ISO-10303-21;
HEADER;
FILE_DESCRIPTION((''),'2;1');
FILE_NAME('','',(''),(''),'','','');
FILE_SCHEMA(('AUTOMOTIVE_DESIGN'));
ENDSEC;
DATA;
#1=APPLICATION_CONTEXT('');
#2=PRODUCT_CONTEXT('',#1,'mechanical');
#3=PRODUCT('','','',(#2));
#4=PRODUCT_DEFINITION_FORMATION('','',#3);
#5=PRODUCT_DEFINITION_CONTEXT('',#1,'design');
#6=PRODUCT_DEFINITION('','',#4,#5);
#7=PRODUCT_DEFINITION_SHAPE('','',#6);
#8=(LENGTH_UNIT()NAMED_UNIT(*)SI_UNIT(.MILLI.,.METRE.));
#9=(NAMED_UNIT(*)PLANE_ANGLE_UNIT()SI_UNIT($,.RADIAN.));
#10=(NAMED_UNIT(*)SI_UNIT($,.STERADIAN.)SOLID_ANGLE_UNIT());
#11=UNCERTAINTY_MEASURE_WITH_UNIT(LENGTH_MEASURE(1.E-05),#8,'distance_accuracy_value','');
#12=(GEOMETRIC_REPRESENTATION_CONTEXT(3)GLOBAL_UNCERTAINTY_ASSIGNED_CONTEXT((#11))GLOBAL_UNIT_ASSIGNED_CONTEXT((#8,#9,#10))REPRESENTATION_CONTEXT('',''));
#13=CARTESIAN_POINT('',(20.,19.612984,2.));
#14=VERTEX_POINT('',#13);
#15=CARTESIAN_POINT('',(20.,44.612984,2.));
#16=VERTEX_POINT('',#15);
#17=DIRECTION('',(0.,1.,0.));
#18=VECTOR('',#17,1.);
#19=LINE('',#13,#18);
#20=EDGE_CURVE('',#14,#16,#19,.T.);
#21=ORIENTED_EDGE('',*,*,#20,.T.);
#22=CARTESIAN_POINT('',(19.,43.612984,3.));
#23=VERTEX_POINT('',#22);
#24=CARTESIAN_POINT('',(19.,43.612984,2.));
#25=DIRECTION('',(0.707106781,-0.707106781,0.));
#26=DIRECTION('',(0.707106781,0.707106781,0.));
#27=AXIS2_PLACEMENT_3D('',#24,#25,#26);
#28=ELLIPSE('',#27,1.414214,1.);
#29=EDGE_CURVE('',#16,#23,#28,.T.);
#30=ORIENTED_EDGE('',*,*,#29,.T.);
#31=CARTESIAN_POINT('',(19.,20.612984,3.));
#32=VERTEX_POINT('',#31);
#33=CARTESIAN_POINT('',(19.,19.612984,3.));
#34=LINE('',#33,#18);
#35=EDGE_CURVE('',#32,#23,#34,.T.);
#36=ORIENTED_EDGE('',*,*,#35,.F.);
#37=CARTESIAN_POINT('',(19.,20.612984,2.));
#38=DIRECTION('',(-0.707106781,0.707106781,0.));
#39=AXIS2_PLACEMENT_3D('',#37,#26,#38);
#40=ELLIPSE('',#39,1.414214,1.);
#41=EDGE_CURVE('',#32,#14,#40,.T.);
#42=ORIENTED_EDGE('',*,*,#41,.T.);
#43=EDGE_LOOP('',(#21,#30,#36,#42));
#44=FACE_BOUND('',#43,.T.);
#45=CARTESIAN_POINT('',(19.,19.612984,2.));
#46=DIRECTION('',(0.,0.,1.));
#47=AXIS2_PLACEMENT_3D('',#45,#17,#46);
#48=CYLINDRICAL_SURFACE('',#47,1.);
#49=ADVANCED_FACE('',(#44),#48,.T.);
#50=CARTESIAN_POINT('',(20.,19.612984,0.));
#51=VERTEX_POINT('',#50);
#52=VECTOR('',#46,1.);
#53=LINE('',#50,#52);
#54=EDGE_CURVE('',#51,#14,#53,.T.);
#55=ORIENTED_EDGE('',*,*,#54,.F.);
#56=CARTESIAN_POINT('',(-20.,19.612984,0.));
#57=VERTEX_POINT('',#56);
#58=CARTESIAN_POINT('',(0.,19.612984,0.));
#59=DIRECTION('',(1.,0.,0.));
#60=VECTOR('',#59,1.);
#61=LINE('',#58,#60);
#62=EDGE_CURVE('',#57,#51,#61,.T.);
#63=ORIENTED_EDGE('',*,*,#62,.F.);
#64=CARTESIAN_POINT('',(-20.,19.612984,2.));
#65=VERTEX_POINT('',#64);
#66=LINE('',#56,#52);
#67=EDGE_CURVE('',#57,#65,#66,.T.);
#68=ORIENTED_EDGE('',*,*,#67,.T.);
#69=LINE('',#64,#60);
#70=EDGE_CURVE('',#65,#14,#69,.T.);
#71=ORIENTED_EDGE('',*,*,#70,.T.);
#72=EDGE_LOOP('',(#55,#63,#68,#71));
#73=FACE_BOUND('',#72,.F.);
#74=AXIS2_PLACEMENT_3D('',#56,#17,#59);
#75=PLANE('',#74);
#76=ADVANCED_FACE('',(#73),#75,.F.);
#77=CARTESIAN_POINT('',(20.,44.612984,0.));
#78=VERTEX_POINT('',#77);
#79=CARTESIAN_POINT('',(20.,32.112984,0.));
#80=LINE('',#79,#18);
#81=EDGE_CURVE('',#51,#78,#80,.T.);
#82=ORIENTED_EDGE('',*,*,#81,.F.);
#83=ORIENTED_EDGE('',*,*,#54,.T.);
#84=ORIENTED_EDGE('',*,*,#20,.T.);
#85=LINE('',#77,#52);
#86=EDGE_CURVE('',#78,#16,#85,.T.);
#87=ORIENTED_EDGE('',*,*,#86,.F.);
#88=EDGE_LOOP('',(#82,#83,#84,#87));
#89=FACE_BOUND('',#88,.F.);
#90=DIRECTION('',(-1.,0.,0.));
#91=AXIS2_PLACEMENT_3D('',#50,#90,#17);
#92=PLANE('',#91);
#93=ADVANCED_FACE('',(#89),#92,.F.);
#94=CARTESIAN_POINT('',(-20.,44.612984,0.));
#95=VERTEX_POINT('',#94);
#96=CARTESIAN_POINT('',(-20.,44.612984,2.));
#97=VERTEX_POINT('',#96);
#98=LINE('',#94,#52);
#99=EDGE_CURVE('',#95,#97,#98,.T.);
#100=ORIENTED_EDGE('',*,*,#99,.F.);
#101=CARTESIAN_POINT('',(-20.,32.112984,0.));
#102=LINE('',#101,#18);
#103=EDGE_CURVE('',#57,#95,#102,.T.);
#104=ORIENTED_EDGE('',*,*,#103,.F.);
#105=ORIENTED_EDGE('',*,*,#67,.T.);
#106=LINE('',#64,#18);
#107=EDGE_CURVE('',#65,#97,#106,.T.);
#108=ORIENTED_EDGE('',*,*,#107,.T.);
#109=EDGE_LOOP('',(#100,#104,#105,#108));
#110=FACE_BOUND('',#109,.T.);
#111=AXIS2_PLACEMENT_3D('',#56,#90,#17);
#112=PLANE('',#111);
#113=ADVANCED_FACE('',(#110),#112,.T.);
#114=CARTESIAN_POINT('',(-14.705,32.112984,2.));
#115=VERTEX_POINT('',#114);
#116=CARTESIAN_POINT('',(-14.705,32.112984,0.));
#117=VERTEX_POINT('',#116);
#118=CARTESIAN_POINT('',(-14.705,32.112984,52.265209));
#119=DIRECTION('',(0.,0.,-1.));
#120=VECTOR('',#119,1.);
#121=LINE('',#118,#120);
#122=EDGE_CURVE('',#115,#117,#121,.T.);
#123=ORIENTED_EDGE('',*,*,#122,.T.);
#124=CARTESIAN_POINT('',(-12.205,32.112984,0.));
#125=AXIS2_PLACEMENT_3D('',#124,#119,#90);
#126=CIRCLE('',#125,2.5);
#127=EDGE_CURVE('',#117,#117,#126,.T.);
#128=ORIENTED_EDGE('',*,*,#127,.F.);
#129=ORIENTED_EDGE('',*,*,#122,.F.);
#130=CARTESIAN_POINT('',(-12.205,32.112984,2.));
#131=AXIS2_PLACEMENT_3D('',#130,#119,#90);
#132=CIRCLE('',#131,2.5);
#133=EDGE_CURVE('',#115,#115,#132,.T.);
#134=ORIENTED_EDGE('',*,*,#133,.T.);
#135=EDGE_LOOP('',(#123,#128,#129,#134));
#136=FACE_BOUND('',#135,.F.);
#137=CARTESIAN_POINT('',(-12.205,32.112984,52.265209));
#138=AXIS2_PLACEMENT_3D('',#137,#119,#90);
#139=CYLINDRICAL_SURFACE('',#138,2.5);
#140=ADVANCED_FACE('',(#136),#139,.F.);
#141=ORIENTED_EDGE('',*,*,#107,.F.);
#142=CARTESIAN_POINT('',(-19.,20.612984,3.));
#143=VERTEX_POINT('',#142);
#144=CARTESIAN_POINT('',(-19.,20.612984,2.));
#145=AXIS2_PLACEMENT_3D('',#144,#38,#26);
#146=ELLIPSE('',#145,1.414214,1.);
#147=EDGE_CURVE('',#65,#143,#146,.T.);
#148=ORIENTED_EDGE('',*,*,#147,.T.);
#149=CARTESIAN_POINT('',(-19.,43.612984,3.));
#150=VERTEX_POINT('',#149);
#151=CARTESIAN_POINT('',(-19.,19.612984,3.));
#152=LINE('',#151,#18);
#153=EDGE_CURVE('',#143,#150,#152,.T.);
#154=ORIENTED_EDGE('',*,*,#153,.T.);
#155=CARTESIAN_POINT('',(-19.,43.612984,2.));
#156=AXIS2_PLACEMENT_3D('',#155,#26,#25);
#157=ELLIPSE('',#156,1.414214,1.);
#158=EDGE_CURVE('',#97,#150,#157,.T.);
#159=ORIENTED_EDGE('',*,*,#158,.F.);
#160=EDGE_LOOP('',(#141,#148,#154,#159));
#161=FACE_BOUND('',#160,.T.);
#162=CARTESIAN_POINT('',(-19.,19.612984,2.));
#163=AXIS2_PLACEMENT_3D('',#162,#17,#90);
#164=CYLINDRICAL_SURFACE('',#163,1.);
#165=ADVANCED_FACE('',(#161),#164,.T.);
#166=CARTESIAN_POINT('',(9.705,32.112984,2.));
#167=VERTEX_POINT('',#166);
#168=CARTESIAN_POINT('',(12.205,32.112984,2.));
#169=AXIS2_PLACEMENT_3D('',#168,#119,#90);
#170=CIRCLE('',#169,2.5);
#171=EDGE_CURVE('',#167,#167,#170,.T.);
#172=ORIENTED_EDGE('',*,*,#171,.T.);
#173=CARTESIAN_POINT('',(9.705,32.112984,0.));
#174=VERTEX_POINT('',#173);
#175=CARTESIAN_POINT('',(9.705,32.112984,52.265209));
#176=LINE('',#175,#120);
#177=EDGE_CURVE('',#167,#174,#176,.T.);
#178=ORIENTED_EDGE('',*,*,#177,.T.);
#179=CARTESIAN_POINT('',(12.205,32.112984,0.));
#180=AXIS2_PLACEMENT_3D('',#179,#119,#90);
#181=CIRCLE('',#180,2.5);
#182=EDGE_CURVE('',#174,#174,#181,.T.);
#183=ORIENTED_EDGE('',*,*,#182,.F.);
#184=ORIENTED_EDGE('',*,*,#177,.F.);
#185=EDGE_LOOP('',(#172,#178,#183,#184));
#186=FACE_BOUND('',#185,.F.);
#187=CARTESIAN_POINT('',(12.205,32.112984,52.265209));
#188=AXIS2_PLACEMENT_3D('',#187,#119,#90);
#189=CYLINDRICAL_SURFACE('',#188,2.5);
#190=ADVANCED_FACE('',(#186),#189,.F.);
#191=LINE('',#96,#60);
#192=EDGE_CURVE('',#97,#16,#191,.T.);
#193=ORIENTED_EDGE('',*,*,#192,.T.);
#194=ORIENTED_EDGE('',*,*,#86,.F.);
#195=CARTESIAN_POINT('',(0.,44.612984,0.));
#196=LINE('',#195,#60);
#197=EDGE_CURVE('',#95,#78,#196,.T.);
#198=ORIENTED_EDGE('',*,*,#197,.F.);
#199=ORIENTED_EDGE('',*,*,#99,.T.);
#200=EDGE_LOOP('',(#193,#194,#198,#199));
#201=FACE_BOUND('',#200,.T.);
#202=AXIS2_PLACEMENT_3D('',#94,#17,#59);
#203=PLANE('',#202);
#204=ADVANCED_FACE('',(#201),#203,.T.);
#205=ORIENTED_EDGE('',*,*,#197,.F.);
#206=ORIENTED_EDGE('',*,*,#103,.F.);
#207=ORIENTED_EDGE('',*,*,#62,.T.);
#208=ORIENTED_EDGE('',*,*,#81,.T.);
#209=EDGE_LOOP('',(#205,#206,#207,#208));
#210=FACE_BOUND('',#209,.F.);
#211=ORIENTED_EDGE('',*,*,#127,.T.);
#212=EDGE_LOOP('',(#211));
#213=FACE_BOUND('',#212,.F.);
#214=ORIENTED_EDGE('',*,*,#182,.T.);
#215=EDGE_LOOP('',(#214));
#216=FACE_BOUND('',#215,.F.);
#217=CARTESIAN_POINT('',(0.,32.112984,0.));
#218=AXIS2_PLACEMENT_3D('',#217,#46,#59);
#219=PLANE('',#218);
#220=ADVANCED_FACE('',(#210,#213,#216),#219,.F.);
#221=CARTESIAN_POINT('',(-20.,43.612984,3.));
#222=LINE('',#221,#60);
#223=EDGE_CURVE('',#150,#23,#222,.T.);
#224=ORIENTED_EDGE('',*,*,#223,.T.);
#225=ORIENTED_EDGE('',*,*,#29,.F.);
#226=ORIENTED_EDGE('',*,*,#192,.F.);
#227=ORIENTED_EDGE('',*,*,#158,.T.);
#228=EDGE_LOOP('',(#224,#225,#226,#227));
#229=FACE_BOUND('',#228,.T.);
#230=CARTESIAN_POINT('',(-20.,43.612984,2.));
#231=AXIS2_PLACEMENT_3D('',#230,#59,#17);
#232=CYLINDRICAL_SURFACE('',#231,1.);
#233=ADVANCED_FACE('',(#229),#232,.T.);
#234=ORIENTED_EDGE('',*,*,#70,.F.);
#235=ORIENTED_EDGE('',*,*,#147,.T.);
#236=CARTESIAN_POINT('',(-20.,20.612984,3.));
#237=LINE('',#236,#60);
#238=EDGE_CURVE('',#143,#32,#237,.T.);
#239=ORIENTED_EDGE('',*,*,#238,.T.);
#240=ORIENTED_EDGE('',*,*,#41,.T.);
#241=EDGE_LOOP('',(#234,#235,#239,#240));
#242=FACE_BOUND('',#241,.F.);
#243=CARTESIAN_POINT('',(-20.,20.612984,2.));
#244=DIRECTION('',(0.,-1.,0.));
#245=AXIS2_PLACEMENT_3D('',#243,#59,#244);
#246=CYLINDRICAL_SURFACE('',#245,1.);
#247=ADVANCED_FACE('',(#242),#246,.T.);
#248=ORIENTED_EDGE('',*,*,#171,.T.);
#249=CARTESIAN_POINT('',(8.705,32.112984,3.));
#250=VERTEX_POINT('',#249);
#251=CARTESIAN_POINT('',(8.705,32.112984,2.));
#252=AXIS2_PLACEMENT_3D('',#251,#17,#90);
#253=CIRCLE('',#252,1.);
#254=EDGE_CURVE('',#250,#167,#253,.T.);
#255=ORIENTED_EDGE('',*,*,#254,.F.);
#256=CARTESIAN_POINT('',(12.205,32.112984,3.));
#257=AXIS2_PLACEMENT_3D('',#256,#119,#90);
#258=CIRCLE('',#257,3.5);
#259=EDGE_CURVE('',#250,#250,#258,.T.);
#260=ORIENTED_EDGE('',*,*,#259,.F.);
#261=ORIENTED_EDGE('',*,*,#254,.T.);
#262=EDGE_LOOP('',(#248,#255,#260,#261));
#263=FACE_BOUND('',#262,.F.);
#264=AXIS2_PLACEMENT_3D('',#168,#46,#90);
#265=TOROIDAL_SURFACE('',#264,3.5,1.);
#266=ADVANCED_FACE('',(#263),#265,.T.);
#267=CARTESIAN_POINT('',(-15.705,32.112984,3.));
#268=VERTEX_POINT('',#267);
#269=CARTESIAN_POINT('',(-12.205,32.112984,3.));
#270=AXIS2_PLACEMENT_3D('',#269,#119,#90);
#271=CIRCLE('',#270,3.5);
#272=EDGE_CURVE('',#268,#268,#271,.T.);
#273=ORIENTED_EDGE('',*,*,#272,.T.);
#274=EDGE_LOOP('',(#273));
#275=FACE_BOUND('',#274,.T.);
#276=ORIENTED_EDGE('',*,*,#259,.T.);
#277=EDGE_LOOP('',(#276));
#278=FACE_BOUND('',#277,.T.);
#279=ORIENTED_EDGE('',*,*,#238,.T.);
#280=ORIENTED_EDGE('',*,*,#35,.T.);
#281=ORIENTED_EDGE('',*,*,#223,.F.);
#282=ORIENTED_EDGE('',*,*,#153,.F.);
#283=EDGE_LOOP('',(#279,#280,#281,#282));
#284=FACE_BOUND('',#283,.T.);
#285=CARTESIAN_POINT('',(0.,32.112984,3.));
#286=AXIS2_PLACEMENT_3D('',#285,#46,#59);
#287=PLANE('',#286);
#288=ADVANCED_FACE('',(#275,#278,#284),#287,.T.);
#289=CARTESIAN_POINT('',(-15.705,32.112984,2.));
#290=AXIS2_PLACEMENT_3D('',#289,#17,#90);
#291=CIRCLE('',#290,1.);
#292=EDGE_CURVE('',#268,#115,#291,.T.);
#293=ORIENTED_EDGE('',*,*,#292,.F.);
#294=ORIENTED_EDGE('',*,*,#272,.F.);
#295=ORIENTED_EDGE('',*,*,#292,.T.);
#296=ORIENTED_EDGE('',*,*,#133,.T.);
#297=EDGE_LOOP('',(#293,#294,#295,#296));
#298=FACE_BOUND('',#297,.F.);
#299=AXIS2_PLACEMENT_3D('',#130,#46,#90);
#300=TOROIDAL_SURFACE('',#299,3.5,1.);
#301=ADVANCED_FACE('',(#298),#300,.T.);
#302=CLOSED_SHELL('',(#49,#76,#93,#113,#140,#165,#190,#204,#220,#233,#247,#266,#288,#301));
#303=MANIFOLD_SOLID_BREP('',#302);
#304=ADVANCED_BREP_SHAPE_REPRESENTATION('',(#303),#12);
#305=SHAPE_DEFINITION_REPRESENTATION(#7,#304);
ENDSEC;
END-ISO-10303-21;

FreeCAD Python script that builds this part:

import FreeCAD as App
import Part
import Sketcher

V = App.Vector


def edges_at(feature, points):
    """Names of the edges that pass closest to the given points."""
    edges = feature.Shape.Edges
    near = lambda p: min(range(len(edges)), key=lambda i: edges[i].distToShape(Part.Vertex(*p))[0])
    return sorted({f"Edge{near(p) + 1}" for p in points})

doc = App.newDocument("Part")
body = doc.addObject("PartDesign::Body", "Body")

# Sketch on XY plane
sketch1 = body.newObject("Sketcher::SketchObject", "Sketch")
sketch1.AttachmentSupport = (doc.getObject("XY_Plane"), [""])
sketch1.MapMode = "FlatFace"
sketch1.addGeometry(Part.LineSegment(V(-20, 45, 0), V(-20, 20, 0)), False)
sketch1.addGeometry(Part.LineSegment(V(-20, 20, 0), V(20, 20, 0)), False)
sketch1.addGeometry(Part.LineSegment(V(20, 20, 0), V(20, 45, 0)), False)
sketch1.addGeometry(Part.LineSegment(V(20, 45, 0), V(-20, 45, 0)), False)
sketch1.addConstraint(Sketcher.Constraint("Coincident", 0, 2, 1, 1))
sketch1.addConstraint(Sketcher.Constraint("Coincident", 1, 2, 2, 1))
sketch1.addConstraint(Sketcher.Constraint("Coincident", 2, 2, 3, 1))
sketch1.addConstraint(Sketcher.Constraint("Coincident", 3, 2, 0, 1))
sketch1.addConstraint(Sketcher.Constraint("Vertical", 0))
sketch1.addConstraint(Sketcher.Constraint("Horizontal", 1))
sketch1.addConstraint(Sketcher.Constraint("Vertical", 2))
sketch1.addConstraint(Sketcher.Constraint("Horizontal", 3))
sketch1.addConstraint(Sketcher.Constraint("DistanceX", 1, 1, 1, 2, 40.0))
sketch1.addConstraint(Sketcher.Constraint("DistanceY", 0, 2, 0, 1, 25.0))
sketch1.addConstraint(Sketcher.Constraint("DistanceX", 0, 2, -1, 1, 20.0))
sketch1.addConstraint(Sketcher.Constraint("DistanceY", -1, 1, 0, 2, 19.612984))
pad1 = body.newObject("PartDesign::Pad", "Pad")
pad1.Profile = sketch1
pad1.Length = 3

# Sketch on XY plane
sketch2 = body.newObject("Sketcher::SketchObject", "Sketch001")
sketch2.AttachmentSupport = (doc.getObject("XY_Plane"), [""])
sketch2.MapMode = "FlatFace"
sketch2.AttachmentOffset = App.Placement(V(0, 0, 5), App.Rotation())
sketch2.addGeometry(Part.Circle(V(-12.2, 32.1, 0), V(0, 0, 1), 2.5), False)
sketch2.addGeometry(Part.Circle(V(12.2, 32.1, 0), V(0, 0, 1), 2.5), False)
sketch2.addConstraint(Sketcher.Constraint("Equal", 0, 1))
sketch2.addConstraint(Sketcher.Constraint("Symmetric", 0, 3, 1, 3, -2))
sketch2.addConstraint(Sketcher.Constraint("Diameter", 0, 5.0))
sketch2.addConstraint(Sketcher.Constraint("DistanceX", 0, 3, 1, 3, 24.41))
sketch2.addConstraint(Sketcher.Constraint("DistanceY", -1, 1, 0, 3, 32.112984))
doc.recompute()
hole = body.newObject("PartDesign::Hole", "Hole")
hole.Profile = sketch2
hole.ThreadType = "None"
hole.Diameter = 5
hole.DepthType = "ThroughAll"
doc.recompute()

fillet = body.newObject("PartDesign::Fillet", "Fillet")
fillet.Base = (hole, edges_at(hole, [
    (0, 44.613, 3),
    (20, 32.113, 3),
    (-20, 32.113, 3),
    (0, 19.613, 3),
    (-9.705, 32.113, 3),
    (14.705, 32.113, 3),
]))
fillet.Radius = 1

doc.recompute()
